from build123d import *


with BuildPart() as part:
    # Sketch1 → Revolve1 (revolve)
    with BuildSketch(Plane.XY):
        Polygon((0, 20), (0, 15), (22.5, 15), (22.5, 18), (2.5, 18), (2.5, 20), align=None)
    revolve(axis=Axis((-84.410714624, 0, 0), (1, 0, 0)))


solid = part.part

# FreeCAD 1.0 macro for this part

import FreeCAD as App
import Part
import Sketcher

V = App.Vector
Q = App.Units.Quantity


def add_polygon(sketch, points):
    """Adds a closed chain of lines whose ends are joined by coincident constraints."""
    first, n = sketch.GeometryCount, len(points)
    for a, b in zip(points, points[1:] + points[:1]):
        sketch.addGeometry(Part.LineSegment(App.Vector(*a, 0), App.Vector(*b, 0)), False)
    for i in range(n):
        sketch.addConstraint(Sketcher.Constraint("Coincident", first + i, 2, first + (i + 1) % n, 1))

doc = App.newDocument("Part")
body = doc.addObject("PartDesign::Body", "Body")

# Sketch on XY plane
sketch1 = doc.addObject("Sketcher::SketchObject", "Sketch")
body.addObject(sketch1)
sketch1.AttachmentSupport = (doc.XY_Plane, [""])
sketch1.MapMode = "FlatFace"
add_polygon(sketch1, [(0, 20), (0, 15), (22.5, 15), (22.5, 18), (2.5, 18), (2.5, 20)])  # lines 0-5
sketch1.addConstraint([
    Sketcher.Constraint("Vertical", 0),
    Sketcher.Constraint("Horizontal", 1),
    Sketcher.Constraint("Vertical", 2),
    Sketcher.Constraint("Horizontal", 3),
    Sketcher.Constraint("Vertical", 4),
    Sketcher.Constraint("Horizontal", 5),
    Sketcher.Constraint("PointOnObject", 0, 2, -2),
    Sketcher.Constraint("DistanceX", 3, 2, 3, 1, Q("20 mm")),
    Sketcher.Constraint("DistanceY", 0, 2, 0, 1, Q("5 mm")),
    Sketcher.Constraint("DistanceY", 2, 1, 2, 2, Q("3 mm")),
    Sketcher.Constraint("DistanceX", 1, 1, 1, 2, Q("22.5 mm")),
    Sketcher.Constraint("DistanceY", -1, 1, 0, 2, Q("15 mm")),
])
revolution = doc.addObject("PartDesign::Revolution", "Revolution")
body.addObject(revolution)
revolution.Profile = sketch1
revolution.ReferenceAxis = (sketch1, ["H_Axis"])
revolution.Angle = 360

doc.recompute()
